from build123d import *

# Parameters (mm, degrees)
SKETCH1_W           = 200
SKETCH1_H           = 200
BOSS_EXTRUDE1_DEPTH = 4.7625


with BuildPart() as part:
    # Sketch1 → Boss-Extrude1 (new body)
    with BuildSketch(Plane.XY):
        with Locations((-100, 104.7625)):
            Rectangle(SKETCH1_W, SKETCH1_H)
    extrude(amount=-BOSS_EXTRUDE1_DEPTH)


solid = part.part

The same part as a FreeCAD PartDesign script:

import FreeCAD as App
import Part
import Sketcher


def add_polygon(sketch, points):
    """Adds a closed chain of lines whose ends are joined by coincident constraints."""
    first, n = sketch.GeometryCount, len(points)
    for a, b in zip(points, points[1:] + points[:1]):
        sketch.addGeometry(Part.LineSegment(App.Vector(*a, 0), App.Vector(*b, 0)), False)
    for i in range(n):
        sketch.addConstraint(Sketcher.Constraint("Coincident", first + i, 2, first + (i + 1) % n, 1))

doc = App.newDocument("Part")
body = doc.addObject("PartDesign::Body", "Body")

# Sketch on XY plane
sketch1 = body.newObject("Sketcher::SketchObject", "Sketch")
sketch1.AttachmentSupport = (doc.getObject("XY_Plane"), [""])
sketch1.MapMode = "FlatFace"
add_polygon(sketch1, [(-200, 205), (-200, 5), (0, 5), (0, 205)])  # lines 0-3
sketch1.addConstraint([
    Sketcher.Constraint("Vertical", 0),
    Sketcher.Constraint("Horizontal", 1),
    Sketcher.Constraint("Vertical", 2),
    Sketcher.Constraint("Horizontal", 3),
    Sketcher.Constraint("PointOnObject", 1, 2, -2),
    Sketcher.Constraint("Equal", 3, 0),
    Sketcher.Constraint("DistanceX", 1, 1, 1, 2, 200.0),
    Sketcher.Constraint("DistanceY", -1, 1, 0, 2, 4.7625),
])
pad1 = body.newObject("PartDesign::Pad", "Pad")
pad1.Profile = sketch1
pad1.Length = 4.7625
pad1.Reversed = True

doc.recompute()
